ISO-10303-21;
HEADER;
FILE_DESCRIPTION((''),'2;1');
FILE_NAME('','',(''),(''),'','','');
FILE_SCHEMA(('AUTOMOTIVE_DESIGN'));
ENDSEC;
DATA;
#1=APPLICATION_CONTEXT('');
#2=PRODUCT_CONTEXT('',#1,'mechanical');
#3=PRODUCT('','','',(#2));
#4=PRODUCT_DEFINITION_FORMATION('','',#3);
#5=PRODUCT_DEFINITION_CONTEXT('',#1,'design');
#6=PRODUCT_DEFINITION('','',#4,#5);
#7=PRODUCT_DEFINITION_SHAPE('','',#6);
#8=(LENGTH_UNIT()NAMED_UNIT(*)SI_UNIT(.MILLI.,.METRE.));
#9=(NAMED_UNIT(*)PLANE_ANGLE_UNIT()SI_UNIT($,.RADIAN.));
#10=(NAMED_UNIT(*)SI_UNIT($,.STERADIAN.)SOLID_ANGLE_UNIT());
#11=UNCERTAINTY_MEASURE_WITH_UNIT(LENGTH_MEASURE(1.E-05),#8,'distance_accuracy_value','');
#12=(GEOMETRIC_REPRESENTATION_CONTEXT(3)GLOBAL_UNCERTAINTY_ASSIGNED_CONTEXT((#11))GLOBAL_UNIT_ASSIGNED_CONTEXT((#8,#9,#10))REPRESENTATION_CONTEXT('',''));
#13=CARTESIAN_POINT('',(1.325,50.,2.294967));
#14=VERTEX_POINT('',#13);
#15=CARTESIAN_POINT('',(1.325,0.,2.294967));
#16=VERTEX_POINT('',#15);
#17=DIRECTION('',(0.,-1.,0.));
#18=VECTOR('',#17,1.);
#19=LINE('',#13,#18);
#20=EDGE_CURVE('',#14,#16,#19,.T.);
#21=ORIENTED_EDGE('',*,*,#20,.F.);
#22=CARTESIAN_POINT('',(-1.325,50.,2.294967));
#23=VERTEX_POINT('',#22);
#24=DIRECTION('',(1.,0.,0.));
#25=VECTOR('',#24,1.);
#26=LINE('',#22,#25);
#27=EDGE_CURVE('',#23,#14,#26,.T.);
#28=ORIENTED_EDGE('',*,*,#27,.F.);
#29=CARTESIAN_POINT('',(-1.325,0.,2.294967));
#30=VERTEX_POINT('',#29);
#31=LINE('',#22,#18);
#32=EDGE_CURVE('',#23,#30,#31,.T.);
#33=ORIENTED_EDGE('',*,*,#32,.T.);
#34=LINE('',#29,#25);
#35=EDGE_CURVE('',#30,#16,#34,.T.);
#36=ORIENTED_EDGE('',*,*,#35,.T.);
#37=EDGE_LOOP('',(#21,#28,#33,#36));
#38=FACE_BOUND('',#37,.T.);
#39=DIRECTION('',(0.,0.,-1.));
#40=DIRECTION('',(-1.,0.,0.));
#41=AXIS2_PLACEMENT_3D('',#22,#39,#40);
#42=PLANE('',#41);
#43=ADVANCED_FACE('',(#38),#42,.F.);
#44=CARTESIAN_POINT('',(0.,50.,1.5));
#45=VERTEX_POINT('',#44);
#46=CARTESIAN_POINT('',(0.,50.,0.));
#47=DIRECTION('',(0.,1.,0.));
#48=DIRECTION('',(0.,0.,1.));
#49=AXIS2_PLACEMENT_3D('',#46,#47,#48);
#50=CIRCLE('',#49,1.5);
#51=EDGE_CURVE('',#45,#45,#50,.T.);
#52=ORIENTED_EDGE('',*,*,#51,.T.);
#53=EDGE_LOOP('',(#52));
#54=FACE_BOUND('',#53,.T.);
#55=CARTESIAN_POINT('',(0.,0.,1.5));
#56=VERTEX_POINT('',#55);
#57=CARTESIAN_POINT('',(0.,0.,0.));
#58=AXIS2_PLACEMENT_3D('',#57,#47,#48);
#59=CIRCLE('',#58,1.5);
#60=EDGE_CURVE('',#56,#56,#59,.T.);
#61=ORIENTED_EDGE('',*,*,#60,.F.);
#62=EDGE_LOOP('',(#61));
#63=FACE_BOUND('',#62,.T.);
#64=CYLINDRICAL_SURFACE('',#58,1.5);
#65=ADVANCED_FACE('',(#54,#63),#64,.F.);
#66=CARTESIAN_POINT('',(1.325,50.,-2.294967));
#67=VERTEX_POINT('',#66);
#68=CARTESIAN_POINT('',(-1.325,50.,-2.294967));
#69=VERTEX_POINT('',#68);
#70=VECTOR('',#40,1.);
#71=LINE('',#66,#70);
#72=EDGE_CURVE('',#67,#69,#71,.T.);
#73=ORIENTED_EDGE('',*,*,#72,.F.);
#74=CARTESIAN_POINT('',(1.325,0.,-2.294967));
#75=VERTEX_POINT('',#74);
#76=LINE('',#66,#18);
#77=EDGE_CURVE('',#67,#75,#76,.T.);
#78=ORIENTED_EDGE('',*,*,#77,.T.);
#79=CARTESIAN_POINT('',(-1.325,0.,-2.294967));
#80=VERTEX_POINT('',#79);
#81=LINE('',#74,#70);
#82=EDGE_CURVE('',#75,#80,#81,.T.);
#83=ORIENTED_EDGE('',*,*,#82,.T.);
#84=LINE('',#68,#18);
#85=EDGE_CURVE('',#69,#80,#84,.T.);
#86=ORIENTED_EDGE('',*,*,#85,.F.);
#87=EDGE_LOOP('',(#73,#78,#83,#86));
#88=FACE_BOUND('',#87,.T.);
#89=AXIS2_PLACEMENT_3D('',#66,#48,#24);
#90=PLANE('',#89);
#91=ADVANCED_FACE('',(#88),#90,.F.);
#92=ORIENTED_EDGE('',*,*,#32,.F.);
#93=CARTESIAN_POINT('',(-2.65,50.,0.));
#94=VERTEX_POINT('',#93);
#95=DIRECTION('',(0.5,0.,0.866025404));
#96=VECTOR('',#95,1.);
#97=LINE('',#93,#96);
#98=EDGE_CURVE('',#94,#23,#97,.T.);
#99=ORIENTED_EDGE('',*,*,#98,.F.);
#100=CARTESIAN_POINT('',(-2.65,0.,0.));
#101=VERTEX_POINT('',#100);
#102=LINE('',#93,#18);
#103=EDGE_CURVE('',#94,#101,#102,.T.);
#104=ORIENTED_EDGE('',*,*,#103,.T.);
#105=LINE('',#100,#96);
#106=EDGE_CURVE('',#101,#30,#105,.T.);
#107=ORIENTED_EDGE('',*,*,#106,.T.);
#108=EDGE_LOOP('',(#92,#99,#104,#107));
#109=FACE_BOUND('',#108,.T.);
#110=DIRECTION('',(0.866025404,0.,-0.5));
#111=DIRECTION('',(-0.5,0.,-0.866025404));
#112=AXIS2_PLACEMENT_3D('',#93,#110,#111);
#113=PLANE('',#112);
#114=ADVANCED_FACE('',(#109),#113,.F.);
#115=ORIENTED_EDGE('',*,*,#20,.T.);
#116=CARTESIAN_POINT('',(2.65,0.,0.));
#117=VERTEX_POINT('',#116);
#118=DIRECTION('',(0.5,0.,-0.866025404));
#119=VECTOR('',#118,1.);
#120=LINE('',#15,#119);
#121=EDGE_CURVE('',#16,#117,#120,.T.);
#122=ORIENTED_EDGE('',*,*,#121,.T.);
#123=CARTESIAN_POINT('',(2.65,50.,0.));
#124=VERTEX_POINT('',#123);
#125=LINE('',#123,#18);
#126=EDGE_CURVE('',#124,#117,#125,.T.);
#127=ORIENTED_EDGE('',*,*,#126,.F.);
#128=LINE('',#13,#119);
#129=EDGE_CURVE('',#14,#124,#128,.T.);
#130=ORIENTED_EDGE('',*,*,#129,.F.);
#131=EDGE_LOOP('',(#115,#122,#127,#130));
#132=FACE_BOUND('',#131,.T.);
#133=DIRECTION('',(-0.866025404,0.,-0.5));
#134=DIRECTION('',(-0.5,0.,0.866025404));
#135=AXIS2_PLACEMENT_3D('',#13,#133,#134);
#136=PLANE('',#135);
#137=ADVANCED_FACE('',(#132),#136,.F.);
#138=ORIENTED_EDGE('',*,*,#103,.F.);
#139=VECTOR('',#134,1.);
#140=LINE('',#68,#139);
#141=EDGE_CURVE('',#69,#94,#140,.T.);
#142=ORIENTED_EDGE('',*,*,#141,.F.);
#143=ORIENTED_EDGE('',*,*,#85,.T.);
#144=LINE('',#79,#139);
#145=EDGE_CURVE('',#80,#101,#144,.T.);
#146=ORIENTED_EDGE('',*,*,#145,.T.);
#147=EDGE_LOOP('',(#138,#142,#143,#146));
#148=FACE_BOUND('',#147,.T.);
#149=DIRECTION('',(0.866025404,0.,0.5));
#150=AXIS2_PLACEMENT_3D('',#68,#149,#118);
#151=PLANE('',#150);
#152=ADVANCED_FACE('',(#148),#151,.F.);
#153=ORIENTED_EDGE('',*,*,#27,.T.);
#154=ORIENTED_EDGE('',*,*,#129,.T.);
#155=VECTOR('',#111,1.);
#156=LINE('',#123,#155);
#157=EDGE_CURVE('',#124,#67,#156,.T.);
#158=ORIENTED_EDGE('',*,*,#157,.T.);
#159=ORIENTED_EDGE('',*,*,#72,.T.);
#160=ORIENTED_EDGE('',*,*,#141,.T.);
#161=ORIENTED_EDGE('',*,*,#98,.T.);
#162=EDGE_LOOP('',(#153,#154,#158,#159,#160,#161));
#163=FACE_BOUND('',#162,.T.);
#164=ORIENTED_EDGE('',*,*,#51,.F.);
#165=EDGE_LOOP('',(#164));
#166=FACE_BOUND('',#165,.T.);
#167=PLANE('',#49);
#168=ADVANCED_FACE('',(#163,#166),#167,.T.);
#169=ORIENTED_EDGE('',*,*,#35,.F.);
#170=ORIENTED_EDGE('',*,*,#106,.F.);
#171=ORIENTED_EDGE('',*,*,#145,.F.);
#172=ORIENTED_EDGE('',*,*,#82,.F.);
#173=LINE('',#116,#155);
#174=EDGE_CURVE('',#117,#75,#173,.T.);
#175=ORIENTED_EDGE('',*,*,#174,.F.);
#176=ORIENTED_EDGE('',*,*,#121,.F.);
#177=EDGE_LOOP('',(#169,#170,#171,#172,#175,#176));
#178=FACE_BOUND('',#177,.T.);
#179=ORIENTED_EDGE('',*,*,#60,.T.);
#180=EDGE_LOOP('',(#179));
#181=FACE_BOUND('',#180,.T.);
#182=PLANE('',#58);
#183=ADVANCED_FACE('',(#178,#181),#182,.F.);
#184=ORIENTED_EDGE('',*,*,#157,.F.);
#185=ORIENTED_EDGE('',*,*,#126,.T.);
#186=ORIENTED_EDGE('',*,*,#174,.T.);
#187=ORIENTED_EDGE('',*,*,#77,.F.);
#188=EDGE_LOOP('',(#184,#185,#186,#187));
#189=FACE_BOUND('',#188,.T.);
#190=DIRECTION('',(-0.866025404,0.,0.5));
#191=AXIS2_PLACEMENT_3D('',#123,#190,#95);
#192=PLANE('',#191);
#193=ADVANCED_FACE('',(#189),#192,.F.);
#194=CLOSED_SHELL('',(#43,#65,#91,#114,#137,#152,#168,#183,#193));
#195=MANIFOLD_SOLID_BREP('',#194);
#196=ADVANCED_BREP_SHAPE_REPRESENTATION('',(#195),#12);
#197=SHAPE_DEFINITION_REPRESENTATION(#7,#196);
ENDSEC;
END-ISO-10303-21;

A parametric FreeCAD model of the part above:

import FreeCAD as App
import Part
import Sketcher
from FreeCAD import Vector
Q = App.Units.Quantity


def add_polygon(sketch, points):
    """Adds a closed chain of lines whose ends are joined by coincident constraints."""
    first, n = sketch.GeometryCount, len(points)
    for a, b in zip(points, points[1:] + points[:1]):
        sketch.addGeometry(Part.LineSegment(App.Vector(*a, 0), App.Vector(*b, 0)), False)
    for i in range(n):
        sketch.addConstraint(Sketcher.Constraint("Coincident", first + i, 2, first + (i + 1) % n, 1))

doc = App.newDocument("Part")
body = doc.addObject("PartDesign::Body", "Body")

# Sketch on XZ plane
sketch1 = doc.addObject("Sketcher::SketchObject", "Sketch")
body.addObject(sketch1)
sketch1.AttachmentSupport = (doc.XZ_Plane, [""])
sketch1.MapMode = "FlatFace"
add_polygon(sketch1, [(2.6, 0), (1.3, -2.3), (-1.3, -2.3), (-2.6, 0), (-1.3, 2.3), (1.3, 2.3)])  # lines 0-5
sketch1.addConstraint(Sketcher.Constraint("Horizontal", 1))
sketch1.addConstraint(Sketcher.Constraint("Horizontal", 4))
sketch1.addConstraint(Sketcher.Constraint("Symmetric", 0, 2, 3, 2, -1, 1))
sketch1.addConstraint(Sketcher.Constraint("Symmetric", 2, 2, 5, 2, -1, 1))
sketch1.addConstraint(Sketcher.Constraint("PointOnObject", 2, 2, -1))
sketch1.addConstraint(Sketcher.Constraint("Parallel", 2, 5))
sketch1.addConstraint(Sketcher.Constraint("Vertical", 1, 2, 3, 2))
sketch1.addConstraint(Sketcher.Constraint("Angle", 0, Q("-120 deg")))
sketch1.addConstraint(Sketcher.Constraint("DistanceX", 1, 2, 1, 1, 2.65))
sketch1.addConstraint(Sketcher.Constraint("DistanceX", 2, 2, 5, 2, 5.3))
pad1 = doc.addObject("PartDesign::Pad", "Pad")
body.addObject(pad1)
pad1.Profile = sketch1
pad1.Length = 50
pad1.Reversed = True

# Sketch on XZ plane
sketch2 = doc.addObject("Sketcher::SketchObject", "Sketch001")
body.addObject(sketch2)
sketch2.AttachmentSupport = (doc.XZ_Plane, [""])
sketch2.MapMode = "FlatFace"
sketch2.AttachmentOffset = App.Placement(Vector(0, 0, -50), App.Rotation())
sketch2.addGeometry(Part.Circle(Vector(0, 0, 0), Vector(0, 0, 1), 1.5), False)
sketch2.addConstraint(Sketcher.Constraint("Coincident", 0, 3, -1, 1))
sketch2.addConstraint(Sketcher.Constraint("Diameter", 0, 3.0))
pocket1 = doc.addObject("PartDesign::Pocket", "Pocket")
body.addObject(pocket1)
pocket1.Profile = sketch2
pocket1.Length = 50
pocket1.Reversed = True

doc.recompute()
